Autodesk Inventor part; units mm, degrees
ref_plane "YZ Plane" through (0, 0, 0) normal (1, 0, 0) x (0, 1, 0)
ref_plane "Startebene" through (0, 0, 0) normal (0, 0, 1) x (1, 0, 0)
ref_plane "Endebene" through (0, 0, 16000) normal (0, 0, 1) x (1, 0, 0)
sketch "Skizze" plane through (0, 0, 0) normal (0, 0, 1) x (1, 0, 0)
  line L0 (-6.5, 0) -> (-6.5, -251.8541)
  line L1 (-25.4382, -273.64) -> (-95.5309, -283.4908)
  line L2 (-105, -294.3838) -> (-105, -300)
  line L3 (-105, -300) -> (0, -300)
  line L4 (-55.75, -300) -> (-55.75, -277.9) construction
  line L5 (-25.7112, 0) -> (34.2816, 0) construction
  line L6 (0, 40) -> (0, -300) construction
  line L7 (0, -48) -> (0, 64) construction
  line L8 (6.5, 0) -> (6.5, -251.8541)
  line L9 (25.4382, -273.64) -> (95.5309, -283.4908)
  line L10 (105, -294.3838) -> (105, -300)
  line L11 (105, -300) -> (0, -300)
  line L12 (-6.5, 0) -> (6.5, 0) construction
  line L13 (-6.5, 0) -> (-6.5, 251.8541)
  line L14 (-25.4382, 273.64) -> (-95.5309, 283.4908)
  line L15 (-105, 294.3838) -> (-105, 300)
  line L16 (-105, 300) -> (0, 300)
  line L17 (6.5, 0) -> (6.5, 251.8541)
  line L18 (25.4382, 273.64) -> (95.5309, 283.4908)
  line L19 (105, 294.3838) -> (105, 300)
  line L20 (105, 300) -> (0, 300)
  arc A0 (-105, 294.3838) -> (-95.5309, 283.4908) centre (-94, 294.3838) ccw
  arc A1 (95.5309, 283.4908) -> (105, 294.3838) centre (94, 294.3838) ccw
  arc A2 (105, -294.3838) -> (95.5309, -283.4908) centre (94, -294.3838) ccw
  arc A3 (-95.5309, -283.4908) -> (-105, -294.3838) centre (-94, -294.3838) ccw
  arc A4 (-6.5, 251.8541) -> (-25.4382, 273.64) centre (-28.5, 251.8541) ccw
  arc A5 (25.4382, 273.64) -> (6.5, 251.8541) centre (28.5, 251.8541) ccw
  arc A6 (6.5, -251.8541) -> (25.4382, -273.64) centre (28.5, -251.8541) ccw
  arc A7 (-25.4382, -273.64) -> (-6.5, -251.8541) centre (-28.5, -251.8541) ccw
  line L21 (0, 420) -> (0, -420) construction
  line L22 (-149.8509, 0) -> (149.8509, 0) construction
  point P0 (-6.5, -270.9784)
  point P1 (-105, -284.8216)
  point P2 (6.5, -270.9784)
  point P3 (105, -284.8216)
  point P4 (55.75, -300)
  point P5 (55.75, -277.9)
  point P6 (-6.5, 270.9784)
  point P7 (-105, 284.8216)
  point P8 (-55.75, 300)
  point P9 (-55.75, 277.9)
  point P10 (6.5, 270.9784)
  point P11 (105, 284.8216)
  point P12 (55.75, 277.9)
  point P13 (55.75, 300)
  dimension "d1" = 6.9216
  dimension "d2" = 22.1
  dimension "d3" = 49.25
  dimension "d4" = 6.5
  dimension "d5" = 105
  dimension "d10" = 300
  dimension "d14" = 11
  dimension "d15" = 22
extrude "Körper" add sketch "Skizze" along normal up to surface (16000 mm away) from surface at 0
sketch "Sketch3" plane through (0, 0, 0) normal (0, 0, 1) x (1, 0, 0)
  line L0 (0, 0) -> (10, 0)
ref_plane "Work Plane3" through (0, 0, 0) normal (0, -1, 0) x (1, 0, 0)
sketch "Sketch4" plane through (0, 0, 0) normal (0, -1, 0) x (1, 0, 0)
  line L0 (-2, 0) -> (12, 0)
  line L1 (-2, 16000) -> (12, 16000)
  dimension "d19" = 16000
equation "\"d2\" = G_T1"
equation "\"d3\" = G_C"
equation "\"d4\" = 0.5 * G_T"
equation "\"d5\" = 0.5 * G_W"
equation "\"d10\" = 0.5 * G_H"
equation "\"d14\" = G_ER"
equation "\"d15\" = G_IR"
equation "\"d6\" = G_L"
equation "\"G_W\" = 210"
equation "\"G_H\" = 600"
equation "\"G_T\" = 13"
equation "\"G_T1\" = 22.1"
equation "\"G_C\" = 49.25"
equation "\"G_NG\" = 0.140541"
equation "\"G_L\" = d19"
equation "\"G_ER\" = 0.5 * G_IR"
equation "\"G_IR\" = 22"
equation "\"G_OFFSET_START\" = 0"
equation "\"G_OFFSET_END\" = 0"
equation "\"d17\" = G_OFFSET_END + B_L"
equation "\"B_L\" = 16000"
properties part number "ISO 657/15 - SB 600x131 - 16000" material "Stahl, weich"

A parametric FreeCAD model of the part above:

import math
import FreeCAD as App
import Part
import Sketcher
Q = App.Units.Quantity

doc = App.newDocument("Part")
body = doc.addObject("PartDesign::Body", "Body")

# Sketch on XY plane
sketch1 = body.newObject("Sketcher::SketchObject", "Sketch")
sketch1.AttachmentSupport = (doc.getObject("XY_Plane"), [""])
sketch1.MapMode = "FlatFace"
sketch1.addGeometry(Part.LineSegment(App.Vector(-6.5, 251.8541, 0), App.Vector(-6.5, -251.8541, 0)), False)
sketch1.addGeometry(Part.ArcOfCircle(Part.Circle(App.Vector(-28.5, -251.8541, 0), App.Vector(0, 0, 1), 22.000001), math.radians(-82.000022), math.radians(0)), False)
sketch1.addGeometry(Part.LineSegment(App.Vector(-25.4382, -273.64, 0), App.Vector(-95.5309, -283.4908, 0)), False)
sketch1.addGeometry(Part.ArcOfCircle(Part.Circle(App.Vector(-94, -294.3838, 0), App.Vector(0, 0, 1), 11.00005), math.radians(97.999942), math.radians(180)), False)
sketch1.addGeometry(Part.LineSegment(App.Vector(-105, -294.3838, 0), App.Vector(-105, -300, 0)), False)
sketch1.addGeometry(Part.LineSegment(App.Vector(-105, -300, 0), App.Vector(105, -300, 0)), False)
sketch1.addGeometry(Part.LineSegment(App.Vector(105, -300, 0), App.Vector(105, -294.3838, 0)), False)
sketch1.addGeometry(Part.ArcOfCircle(Part.Circle(App.Vector(94, -294.3838, 0), App.Vector(0, 0, 1), 11), math.radians(0), math.radians(82.000058)), False)
sketch1.addGeometry(Part.LineSegment(App.Vector(95.5309, -283.4908, 0), App.Vector(25.4382, -273.64, 0)), False)
sketch1.addGeometry(Part.ArcOfCircle(Part.Circle(App.Vector(28.5, -251.8541, 0), App.Vector(0, 0, 1), 22), math.radians(180), math.radians(262.000022)), False)
sketch1.addGeometry(Part.LineSegment(App.Vector(6.5, -251.8541, 0), App.Vector(6.5, 251.8541, 0)), False)
sketch1.addGeometry(Part.ArcOfCircle(Part.Circle(App.Vector(28.5, 251.8541, 0), App.Vector(0, 0, 1), 22.000001), math.radians(97.999978), math.radians(180)), False)
sketch1.addGeometry(Part.LineSegment(App.Vector(25.4382, 273.64, 0), App.Vector(95.5309, 283.4908, 0)), False)
sketch1.addGeometry(Part.ArcOfCircle(Part.Circle(App.Vector(94, 294.3838, 0), App.Vector(0, 0, 1), 11.00005), math.radians(-82.000058), math.radians(0)), False)
sketch1.addGeometry(Part.LineSegment(App.Vector(105, 294.3838, 0), App.Vector(105, 300, 0)), False)
sketch1.addGeometry(Part.LineSegment(App.Vector(105, 300, 0), App.Vector(-105, 300, 0)), False)
sketch1.addGeometry(Part.LineSegment(App.Vector(-105, 300, 0), App.Vector(-105, 294.3838, 0)), False)
sketch1.addGeometry(Part.ArcOfCircle(Part.Circle(App.Vector(-94, 294.3838, 0), App.Vector(0, 0, 1), 11), math.radians(180), math.radians(262.000058)), False)
sketch1.addGeometry(Part.LineSegment(App.Vector(-95.5309, 283.4908, 0), App.Vector(-25.4382, 273.64, 0)), False)
sketch1.addGeometry(Part.ArcOfCircle(Part.Circle(App.Vector(-28.5, 251.8541, 0), App.Vector(0, 0, 1), 22), math.radians(0), math.radians(82.000022)), False)
sketch1.addConstraint(Sketcher.Constraint("Tangent", 0, 2, 1, 2))
sketch1.addConstraint(Sketcher.Constraint("Tangent", 1, 1, 2, 1))
sketch1.addConstraint(Sketcher.Constraint("Tangent", 2, 2, 3, 1))
sketch1.addConstraint(Sketcher.Constraint("Tangent", 3, 2, 4, 1))
sketch1.addConstraint(Sketcher.Constraint("Coincident", 4, 2, 5, 1))
sketch1.addConstraint(Sketcher.Constraint("Coincident", 5, 2, 6, 1))
sketch1.addConstraint(Sketcher.Constraint("Tangent", 6, 2, 7, 1))
sketch1.addConstraint(Sketcher.Constraint("Tangent", 7, 2, 8, 1))
sketch1.addConstraint(Sketcher.Constraint("Tangent", 8, 2, 9, 2))
sketch1.addConstraint(Sketcher.Constraint("Tangent", 9, 1, 10, 1))
sketch1.addConstraint(Sketcher.Constraint("Tangent", 10, 2, 11, 2))
sketch1.addConstraint(Sketcher.Constraint("Tangent", 11, 1, 12, 1))
sketch1.addConstraint(Sketcher.Constraint("Tangent", 12, 2, 13, 1))
sketch1.addConstraint(Sketcher.Constraint("Tangent", 13, 2, 14, 1))
sketch1.addConstraint(Sketcher.Constraint("Coincident", 14, 2, 15, 1))
sketch1.addConstraint(Sketcher.Constraint("Coincident", 15, 2, 16, 1))
sketch1.addConstraint(Sketcher.Constraint("Tangent", 16, 2, 17, 1))
sketch1.addConstraint(Sketcher.Constraint("Tangent", 17, 2, 18, 1))
sketch1.addConstraint(Sketcher.Constraint("Tangent", 18, 2, 19, 2))
sketch1.addConstraint(Sketcher.Constraint("Tangent", 19, 1, 0, 1))
sketch1.addConstraint(Sketcher.Constraint("Vertical", 0))
sketch1.addConstraint(Sketcher.Constraint("Vertical", 4))
sketch1.addConstraint(Sketcher.Constraint("Horizontal", 5))
sketch1.addConstraint(Sketcher.Constraint("Vertical", 6))
sketch1.addConstraint(Sketcher.Constraint("Vertical", 10))
sketch1.addConstraint(Sketcher.Constraint("Vertical", 14))
sketch1.addConstraint(Sketcher.Constraint("Horizontal", 15))
sketch1.addConstraint(Sketcher.Constraint("Vertical", 16))
sketch1.addConstraint(Sketcher.Constraint("Equal", 3, 7))
sketch1.addConstraint(Sketcher.Constraint("Equal", 1, 9))
sketch1.addConstraint(Sketcher.Constraint("Equal", 9, 11))
sketch1.addConstraint(Sketcher.Constraint("Equal", 7, 13))
sketch1.addConstraint(Sketcher.Constraint("Equal", 13, 17))
sketch1.addConstraint(Sketcher.Constraint("Equal", 11, 19))
sketch1.addConstraint(Sketcher.Constraint("Symmetric", 1, 3, 11, 3, -1, 1))
sketch1.addConstraint(Sketcher.Constraint("Symmetric", 3, 3, 13, 3, -1, 1))
sketch1.addConstraint(Sketcher.Constraint("Symmetric", 7, 3, 17, 3, -1, 1))
sketch1.addConstraint(Sketcher.Constraint("Symmetric", 3, 3, 7, 3, -2))
sketch1.addConstraint(Sketcher.Constraint("Parallel", 8, 18))
sketch1.addConstraint(Sketcher.Constraint("Horizontal", 1, 3, 9, 3))
sketch1.addConstraint(Sketcher.Constraint("Equal", 6, 14))
sketch1.addConstraint(Sketcher.Constraint("Radius", 1, 22.0))
sketch1.addConstraint(Sketcher.Constraint("Radius", 3, 11.0))
sketch1.addConstraint(Sketcher.Constraint("DistanceX", 3, 2, -1, 1, 105.0))
sketch1.addConstraint(Sketcher.Constraint("DistanceY", 4, 2, -1, 1, 300.0))
sketch1.addConstraint(Sketcher.Constraint("DistanceX", 0, 2, -1, 1, 6.5))
sketch1.addConstraint(Sketcher.Constraint("Angle", 2, Q("-172 deg")))
sketch1.addConstraint(Sketcher.Constraint("DistanceY", 1, 1, -1, 1, 273.64))
pad1 = body.newObject("PartDesign::Pad", "Pad")
pad1.Profile = sketch1
pad1.Length = 16000

doc.recompute()
